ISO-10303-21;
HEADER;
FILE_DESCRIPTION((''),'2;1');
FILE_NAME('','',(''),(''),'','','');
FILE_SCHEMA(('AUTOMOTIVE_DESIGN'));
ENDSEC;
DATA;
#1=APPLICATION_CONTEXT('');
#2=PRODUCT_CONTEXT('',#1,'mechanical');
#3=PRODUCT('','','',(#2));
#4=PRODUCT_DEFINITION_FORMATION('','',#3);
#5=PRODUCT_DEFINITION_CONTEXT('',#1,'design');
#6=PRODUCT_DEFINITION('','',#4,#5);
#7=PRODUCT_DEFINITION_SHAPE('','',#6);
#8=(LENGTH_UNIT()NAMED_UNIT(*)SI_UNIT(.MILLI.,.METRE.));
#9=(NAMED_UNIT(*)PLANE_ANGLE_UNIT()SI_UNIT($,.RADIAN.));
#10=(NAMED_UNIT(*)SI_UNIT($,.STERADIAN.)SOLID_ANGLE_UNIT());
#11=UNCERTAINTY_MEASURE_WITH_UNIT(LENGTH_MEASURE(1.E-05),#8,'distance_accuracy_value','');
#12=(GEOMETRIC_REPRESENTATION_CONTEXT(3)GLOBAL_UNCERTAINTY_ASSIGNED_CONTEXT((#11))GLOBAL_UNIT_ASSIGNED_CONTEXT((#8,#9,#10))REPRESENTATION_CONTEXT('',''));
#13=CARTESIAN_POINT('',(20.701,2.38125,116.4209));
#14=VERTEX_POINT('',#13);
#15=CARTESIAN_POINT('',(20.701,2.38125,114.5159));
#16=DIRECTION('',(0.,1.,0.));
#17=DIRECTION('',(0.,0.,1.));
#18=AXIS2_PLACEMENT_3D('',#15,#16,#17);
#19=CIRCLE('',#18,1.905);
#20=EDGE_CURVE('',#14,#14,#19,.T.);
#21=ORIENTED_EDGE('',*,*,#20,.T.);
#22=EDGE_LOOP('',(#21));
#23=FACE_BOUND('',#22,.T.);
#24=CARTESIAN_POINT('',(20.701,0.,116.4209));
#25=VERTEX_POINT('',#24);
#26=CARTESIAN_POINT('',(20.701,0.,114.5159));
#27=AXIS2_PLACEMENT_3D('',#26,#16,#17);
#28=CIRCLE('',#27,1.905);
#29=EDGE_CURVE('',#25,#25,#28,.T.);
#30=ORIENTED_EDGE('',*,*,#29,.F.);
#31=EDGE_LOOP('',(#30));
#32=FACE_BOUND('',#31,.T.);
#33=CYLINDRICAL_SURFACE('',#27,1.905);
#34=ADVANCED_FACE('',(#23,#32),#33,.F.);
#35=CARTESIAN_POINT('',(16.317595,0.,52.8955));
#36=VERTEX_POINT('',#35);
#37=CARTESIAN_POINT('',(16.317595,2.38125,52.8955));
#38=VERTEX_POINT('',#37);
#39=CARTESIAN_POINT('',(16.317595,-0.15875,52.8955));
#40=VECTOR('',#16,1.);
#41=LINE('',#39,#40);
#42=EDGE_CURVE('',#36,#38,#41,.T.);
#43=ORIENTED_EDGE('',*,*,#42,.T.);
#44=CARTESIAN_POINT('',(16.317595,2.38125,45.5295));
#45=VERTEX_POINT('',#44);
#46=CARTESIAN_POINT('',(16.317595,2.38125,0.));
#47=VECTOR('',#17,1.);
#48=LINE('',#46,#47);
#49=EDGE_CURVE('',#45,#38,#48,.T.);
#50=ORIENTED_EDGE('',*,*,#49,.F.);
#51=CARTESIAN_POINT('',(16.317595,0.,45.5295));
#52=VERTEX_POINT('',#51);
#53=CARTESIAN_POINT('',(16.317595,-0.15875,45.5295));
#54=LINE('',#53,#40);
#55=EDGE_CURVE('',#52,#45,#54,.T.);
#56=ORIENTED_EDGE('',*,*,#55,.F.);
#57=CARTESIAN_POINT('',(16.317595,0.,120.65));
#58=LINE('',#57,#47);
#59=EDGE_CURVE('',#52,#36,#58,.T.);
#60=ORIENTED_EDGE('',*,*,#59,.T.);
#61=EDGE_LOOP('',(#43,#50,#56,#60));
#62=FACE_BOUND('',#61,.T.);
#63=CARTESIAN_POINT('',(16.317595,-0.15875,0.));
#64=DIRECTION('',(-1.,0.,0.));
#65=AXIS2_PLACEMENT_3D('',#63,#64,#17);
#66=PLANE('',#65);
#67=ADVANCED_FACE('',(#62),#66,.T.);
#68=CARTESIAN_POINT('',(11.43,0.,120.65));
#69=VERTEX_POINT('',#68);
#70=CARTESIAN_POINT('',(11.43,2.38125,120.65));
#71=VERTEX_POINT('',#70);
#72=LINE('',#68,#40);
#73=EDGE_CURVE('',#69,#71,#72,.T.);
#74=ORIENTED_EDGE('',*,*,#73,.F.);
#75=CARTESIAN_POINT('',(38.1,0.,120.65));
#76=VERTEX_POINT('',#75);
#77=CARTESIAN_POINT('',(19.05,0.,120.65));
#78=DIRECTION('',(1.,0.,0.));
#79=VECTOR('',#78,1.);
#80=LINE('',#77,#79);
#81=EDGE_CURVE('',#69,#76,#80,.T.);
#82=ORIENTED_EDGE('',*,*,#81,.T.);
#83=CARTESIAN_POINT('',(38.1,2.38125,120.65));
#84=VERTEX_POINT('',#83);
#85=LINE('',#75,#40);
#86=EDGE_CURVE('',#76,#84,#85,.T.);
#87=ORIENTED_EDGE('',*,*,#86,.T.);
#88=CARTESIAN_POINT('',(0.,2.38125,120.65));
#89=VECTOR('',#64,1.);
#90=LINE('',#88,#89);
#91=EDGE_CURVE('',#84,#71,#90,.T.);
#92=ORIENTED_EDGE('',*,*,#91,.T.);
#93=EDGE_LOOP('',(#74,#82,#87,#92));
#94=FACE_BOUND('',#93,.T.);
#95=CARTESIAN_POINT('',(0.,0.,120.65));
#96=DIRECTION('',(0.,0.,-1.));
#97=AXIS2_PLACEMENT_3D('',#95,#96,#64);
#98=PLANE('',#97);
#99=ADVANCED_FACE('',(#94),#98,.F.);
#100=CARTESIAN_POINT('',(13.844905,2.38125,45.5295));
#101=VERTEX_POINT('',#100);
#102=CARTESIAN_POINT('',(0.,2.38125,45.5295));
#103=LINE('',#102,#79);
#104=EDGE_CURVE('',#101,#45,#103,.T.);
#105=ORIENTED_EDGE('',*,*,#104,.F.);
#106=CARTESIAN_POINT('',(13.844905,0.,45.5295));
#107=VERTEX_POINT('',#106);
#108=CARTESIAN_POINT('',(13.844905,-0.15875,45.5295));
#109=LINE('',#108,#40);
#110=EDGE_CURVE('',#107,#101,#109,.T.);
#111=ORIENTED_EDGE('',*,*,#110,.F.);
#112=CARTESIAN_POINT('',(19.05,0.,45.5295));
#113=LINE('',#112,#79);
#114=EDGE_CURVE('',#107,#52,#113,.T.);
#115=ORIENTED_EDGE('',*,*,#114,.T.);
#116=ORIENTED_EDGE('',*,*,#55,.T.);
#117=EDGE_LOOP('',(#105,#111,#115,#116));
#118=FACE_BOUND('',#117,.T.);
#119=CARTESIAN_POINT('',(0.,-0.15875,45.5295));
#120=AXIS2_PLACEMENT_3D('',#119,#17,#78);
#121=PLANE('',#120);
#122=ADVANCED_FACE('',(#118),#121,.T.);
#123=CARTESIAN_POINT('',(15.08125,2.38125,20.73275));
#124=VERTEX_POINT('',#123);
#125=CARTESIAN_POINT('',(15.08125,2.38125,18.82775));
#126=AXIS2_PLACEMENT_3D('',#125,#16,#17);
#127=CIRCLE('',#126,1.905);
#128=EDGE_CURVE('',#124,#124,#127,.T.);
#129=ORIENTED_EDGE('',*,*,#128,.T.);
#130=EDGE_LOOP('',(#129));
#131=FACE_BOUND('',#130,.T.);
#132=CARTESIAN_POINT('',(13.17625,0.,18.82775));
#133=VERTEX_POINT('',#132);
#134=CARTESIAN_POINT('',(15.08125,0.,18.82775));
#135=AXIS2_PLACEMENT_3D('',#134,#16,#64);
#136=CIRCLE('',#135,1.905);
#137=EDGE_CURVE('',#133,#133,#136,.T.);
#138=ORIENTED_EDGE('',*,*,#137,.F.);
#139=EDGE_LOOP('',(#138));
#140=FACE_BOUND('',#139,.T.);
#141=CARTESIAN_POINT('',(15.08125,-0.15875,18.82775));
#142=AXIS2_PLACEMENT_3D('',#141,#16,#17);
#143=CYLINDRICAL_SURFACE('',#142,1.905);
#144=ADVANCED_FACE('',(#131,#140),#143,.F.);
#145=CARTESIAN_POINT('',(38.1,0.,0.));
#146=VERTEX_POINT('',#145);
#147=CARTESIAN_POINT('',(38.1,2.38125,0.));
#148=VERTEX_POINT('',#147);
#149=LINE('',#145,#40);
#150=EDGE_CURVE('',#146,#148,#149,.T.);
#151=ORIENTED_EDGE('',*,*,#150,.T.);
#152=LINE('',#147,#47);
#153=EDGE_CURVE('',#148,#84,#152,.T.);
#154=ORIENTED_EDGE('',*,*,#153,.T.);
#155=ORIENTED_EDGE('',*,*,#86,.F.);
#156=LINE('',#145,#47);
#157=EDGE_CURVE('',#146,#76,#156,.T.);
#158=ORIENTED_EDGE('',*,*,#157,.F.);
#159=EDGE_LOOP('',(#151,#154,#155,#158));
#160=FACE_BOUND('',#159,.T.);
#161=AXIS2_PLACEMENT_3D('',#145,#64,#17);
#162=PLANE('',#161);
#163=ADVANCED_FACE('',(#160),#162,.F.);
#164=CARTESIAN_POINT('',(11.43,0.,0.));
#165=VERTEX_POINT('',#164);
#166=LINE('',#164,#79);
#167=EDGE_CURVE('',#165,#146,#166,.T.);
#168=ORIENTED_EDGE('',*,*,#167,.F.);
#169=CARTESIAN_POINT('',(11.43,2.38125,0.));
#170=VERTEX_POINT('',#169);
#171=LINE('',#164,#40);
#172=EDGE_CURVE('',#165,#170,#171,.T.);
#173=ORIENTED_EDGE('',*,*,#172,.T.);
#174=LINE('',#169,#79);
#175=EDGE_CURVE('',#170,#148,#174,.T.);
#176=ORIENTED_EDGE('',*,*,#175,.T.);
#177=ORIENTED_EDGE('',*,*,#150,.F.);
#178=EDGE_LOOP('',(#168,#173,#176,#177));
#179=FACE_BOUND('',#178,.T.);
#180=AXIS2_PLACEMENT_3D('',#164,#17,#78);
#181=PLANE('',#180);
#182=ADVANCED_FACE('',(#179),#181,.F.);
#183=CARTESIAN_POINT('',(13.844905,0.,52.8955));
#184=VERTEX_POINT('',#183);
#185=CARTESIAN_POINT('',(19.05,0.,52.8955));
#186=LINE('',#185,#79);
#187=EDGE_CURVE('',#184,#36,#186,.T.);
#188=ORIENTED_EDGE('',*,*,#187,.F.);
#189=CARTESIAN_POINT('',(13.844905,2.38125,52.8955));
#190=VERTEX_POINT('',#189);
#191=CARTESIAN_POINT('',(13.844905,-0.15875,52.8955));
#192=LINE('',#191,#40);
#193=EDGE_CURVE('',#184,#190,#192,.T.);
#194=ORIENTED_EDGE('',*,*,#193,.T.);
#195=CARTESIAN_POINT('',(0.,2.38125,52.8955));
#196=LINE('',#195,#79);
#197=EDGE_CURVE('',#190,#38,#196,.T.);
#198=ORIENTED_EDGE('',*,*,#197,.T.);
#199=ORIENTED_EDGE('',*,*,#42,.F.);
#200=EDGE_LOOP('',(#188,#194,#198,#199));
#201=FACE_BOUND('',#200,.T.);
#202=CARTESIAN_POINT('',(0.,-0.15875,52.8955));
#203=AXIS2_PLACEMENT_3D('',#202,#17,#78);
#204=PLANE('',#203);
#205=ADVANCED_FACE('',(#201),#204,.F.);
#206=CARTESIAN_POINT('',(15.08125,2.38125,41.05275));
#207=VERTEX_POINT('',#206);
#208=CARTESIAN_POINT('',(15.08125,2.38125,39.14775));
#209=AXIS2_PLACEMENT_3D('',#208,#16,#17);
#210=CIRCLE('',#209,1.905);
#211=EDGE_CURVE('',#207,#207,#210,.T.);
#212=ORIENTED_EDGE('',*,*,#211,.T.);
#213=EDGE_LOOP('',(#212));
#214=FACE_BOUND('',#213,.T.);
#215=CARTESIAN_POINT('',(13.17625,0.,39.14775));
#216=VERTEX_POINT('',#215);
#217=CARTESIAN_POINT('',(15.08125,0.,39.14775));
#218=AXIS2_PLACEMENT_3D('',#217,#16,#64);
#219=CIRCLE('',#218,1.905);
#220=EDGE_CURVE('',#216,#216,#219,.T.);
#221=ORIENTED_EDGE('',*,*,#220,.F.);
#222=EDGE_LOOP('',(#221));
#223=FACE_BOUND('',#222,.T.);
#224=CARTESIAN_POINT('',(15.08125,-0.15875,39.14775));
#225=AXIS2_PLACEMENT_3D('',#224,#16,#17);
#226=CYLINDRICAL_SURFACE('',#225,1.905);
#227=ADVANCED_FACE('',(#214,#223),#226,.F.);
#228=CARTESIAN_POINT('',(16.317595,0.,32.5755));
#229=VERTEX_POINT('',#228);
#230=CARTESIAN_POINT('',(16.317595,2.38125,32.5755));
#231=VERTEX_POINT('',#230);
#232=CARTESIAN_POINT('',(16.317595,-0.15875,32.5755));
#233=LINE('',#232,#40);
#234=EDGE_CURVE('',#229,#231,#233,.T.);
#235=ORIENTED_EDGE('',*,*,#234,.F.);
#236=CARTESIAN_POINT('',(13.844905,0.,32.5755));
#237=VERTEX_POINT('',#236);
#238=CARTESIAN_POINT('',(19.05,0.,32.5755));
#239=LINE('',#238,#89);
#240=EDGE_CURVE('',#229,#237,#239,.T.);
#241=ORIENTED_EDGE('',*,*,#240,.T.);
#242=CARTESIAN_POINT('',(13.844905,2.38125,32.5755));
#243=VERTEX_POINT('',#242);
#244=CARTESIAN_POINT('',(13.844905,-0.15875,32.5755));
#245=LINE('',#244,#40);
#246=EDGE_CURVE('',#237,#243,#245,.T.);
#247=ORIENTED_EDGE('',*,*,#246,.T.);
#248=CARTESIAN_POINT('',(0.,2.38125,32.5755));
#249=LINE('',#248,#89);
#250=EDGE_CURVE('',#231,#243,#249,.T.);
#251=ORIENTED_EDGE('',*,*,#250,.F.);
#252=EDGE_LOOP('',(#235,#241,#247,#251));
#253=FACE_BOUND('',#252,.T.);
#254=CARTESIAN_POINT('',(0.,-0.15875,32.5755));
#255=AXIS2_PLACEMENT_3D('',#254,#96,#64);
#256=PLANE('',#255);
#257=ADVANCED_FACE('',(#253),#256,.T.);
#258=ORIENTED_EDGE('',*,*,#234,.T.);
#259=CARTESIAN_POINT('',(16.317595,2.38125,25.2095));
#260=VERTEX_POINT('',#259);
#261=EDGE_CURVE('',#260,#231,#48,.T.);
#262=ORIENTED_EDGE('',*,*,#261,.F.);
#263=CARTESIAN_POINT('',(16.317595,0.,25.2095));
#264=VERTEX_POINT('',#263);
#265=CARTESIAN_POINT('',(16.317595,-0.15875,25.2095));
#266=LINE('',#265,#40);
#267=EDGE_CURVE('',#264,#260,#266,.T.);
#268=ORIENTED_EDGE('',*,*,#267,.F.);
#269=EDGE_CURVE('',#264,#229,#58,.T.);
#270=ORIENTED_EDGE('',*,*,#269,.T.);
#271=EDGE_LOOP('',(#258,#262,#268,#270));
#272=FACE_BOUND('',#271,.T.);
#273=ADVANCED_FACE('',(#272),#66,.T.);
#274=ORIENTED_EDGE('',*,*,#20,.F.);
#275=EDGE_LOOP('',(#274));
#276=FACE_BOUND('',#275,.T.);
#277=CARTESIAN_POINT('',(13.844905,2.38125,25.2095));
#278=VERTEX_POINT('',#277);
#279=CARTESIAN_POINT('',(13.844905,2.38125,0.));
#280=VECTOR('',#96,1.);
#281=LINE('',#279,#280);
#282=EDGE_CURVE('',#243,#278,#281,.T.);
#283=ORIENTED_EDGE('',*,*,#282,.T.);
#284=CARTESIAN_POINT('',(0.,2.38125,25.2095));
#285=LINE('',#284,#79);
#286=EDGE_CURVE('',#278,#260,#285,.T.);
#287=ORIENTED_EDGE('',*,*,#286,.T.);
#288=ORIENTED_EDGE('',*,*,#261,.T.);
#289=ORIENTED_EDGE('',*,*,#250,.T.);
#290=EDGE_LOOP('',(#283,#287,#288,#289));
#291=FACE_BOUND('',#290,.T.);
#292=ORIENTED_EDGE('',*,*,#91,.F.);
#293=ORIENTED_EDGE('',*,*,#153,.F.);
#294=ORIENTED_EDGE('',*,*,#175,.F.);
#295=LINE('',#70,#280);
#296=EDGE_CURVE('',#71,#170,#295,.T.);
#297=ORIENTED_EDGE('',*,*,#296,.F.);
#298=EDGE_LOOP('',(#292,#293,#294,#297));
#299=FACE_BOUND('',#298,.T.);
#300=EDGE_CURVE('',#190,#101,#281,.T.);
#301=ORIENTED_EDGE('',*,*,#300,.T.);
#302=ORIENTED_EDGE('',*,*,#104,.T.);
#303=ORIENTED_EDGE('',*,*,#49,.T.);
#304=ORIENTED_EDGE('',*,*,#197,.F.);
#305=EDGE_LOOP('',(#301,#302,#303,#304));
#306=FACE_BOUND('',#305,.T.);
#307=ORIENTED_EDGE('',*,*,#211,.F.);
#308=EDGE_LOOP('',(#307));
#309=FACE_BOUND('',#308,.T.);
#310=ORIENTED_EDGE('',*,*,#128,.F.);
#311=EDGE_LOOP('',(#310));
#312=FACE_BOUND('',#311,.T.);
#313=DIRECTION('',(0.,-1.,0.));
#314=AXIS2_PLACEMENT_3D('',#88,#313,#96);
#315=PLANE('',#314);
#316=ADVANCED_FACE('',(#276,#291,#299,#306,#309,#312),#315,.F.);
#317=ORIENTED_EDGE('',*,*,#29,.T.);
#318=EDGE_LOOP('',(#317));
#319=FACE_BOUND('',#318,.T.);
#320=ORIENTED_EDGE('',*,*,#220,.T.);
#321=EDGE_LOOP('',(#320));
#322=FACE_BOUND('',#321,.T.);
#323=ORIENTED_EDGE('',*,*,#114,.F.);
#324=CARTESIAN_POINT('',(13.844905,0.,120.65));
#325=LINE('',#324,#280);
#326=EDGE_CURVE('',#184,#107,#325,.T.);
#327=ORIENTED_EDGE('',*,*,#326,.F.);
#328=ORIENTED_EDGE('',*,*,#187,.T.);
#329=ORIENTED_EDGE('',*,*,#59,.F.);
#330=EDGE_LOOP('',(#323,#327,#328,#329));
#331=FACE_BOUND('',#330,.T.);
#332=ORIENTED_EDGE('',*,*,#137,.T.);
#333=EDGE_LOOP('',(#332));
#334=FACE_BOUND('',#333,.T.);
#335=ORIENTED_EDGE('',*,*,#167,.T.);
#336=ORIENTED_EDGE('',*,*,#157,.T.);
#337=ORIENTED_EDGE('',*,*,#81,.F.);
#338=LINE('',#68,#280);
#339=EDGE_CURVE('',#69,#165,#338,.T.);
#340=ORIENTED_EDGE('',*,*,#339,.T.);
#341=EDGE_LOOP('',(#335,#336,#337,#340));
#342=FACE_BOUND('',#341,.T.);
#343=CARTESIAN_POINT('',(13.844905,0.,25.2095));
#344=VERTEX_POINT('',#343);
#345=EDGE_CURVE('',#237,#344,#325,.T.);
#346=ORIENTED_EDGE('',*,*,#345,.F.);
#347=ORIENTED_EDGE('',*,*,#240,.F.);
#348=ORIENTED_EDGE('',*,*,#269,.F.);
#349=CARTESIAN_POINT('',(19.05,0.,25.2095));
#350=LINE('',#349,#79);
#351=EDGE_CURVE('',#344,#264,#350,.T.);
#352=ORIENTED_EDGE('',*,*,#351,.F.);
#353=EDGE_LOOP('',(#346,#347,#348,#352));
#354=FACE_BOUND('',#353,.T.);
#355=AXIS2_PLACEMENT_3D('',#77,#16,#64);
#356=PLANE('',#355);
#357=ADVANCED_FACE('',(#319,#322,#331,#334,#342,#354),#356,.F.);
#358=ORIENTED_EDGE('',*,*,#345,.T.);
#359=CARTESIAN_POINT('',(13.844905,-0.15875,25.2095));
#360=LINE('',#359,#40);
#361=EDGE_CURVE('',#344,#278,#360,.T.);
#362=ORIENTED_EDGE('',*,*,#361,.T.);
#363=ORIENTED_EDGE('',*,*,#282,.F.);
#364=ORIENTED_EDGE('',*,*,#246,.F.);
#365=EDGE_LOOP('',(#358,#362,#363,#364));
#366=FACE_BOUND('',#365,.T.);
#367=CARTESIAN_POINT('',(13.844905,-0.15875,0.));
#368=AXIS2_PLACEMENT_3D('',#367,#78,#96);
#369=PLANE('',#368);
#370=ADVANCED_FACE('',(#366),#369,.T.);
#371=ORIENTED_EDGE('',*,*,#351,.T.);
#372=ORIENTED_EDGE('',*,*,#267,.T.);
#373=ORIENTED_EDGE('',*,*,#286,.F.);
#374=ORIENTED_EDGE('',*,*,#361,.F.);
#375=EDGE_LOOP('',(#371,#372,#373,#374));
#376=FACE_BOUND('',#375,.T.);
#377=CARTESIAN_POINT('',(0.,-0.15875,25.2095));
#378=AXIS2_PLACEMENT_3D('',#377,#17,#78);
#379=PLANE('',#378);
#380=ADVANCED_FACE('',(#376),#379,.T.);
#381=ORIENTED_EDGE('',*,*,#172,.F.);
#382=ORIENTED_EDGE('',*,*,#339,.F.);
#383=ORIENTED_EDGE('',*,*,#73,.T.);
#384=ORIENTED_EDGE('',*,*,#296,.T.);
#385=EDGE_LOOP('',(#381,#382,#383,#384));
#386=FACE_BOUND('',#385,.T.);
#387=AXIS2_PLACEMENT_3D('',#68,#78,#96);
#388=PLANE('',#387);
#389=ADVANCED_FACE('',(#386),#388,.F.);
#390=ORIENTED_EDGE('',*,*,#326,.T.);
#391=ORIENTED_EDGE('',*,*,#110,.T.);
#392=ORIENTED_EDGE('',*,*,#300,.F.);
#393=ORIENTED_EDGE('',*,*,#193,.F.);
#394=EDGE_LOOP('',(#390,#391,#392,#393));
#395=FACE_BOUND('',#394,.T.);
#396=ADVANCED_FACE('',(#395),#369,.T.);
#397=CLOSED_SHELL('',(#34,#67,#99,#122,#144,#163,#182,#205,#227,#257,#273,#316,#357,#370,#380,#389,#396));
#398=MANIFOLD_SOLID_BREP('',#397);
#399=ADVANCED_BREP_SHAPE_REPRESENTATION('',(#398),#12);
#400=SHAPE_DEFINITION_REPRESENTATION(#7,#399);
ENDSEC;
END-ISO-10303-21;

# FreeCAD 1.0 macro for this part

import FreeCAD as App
import Part
import Sketcher
Q = App.Units.Quantity


def add_polygon(sketch, points):
    """Adds a closed chain of lines whose ends are joined by coincident constraints."""
    first, n = sketch.GeometryCount, len(points)
    for a, b in zip(points, points[1:] + points[:1]):
        sketch.addGeometry(Part.LineSegment(App.Vector(*a, 0), App.Vector(*b, 0)), False)
    for i in range(n):
        sketch.addConstraint(Sketcher.Constraint("Coincident", first + i, 2, first + (i + 1) % n, 1))

doc = App.newDocument("Part")
body = doc.addObject("PartDesign::Body", "Body")

sketch1 = body.newObject("Sketcher::SketchObject", "Sketch")
sketch1.AttachmentSupport = (doc.getObject("XY_Plane"), [""])
sketch1.MapMode = "FlatFace"
add_polygon(sketch1, [(0, 2.4), (0, 0), (19.1, 0), (19.1, 2.4)])
sketch1.addConstraint(Sketcher.Constraint("Vertical", 0))
sketch1.addConstraint(Sketcher.Constraint("Horizontal", 1))
sketch1.addConstraint(Sketcher.Constraint("Vertical", 2))
sketch1.addConstraint(Sketcher.Constraint("Horizontal", 3))
sketch1.addConstraint(Sketcher.Constraint("Coincident", 0, 2, -1, 1))
sketch1.addConstraint(Sketcher.Constraint("DistanceX", 1, 1, 1, 2, Q("0.75 in")))
sketch1.addConstraint(Sketcher.Constraint("DistanceY", 0, 2, 0, 1, Q("0.09375 in")))
pad1 = body.newObject("PartDesign::Pad", "Pad")
pad1.Profile = sketch1
pad1.Length = Q("4.75 in")

sketch2 = body.newObject("Sketcher::SketchObject", "Sketch001")
sketch2.AttachmentSupport = (doc.getObject("XZ_Plane"), [""])
sketch2.MapMode = "FlatFace"
sketch2.AttachmentOffset = App.Placement(App.Vector(0, 0, -0.09375 * 25.4), App.Rotation())
add_polygon(sketch2, [(19, 0), (19, 121), (38, 121), (38, 0)])
sketch2.addConstraint(Sketcher.Constraint("Vertical", 0))
sketch2.addConstraint(Sketcher.Constraint("Horizontal", 1))
sketch2.addConstraint(Sketcher.Constraint("Vertical", 2))
sketch2.addConstraint(Sketcher.Constraint("Horizontal", 3))
sketch2.addConstraint(Sketcher.Constraint("PointOnObject", 2, 2, -1))
sketch2.addConstraint(Sketcher.Constraint("DistanceX", 1, 1, 1, 2, Q("0.75 in")))
sketch2.addConstraint(Sketcher.Constraint("DistanceY", 0, 1, 0, 2, Q("4.75 in")))
sketch2.addConstraint(Sketcher.Constraint("DistanceX", -1, 1, 1, 2, Q("1.5 in")))
pad2 = body.newObject("PartDesign::Pad", "Pad001")
pad2.Profile = sketch2
pad2.Length = Q("0.09375 in")

sketch3 = body.newObject("Sketcher::SketchObject", "Sketch002")
sketch3.AttachmentSupport = (doc.getObject("XZ_Plane"), [""])
sketch3.MapMode = "FlatFace"
sketch3.AttachmentOffset = App.Placement(App.Vector(0, 0, -0.09375 * 25.4), App.Rotation())
sketch3.addGeometry(Part.Circle(App.Vector(20.7, 114.5, 0), App.Vector(0, 0, 1), 1.9), False)
sketch3.addConstraint(Sketcher.Constraint("Diameter", 0, Q("0.15 in")))
sketch3.addConstraint(Sketcher.Constraint("DistanceX", -1, 1, 0, 3, Q("0.815 in")))
sketch3.addConstraint(Sketcher.Constraint("DistanceY", -1, 1, 0, 3, Q("4.5085 in")))
pocket1 = body.newObject("PartDesign::Pocket", "Pocket")
pocket1.Profile = sketch3
pocket1.Type = "ThroughAll"
pocket1.Reversed = True

sketch4 = body.newObject("Sketcher::SketchObject", "Sketch003")
sketch4.AttachmentSupport = (doc.getObject("XZ_Plane"), [""])
sketch4.MapMode = "FlatFace"
sketch4.AttachmentOffset = App.Placement(App.Vector(0, 0, -0.09375 * 25.4), App.Rotation())
sketch4.addGeometry(Part.Circle(App.Vector(15.1, 39.1, 0), App.Vector(0, 0, 1), 1.9), False)
sketch4.addGeometry(Part.Circle(App.Vector(15.1, 18.8, 0), App.Vector(0, 0, 1), 1.9), False)
add_polygon(sketch4, [(16.3, 32.6), (16.3, 25.2), (13.8, 25.2), (13.8, 32.6)])
add_polygon(sketch4, [(16.3, 52.9), (16.3, 45.5), (13.8, 45.5), (13.8, 52.9)])
sketch4.addConstraint(Sketcher.Constraint("Vertical", 2))
sketch4.addConstraint(Sketcher.Constraint("Horizontal", 3))
sketch4.addConstraint(Sketcher.Constraint("Vertical", 4))
sketch4.addConstraint(Sketcher.Constraint("Horizontal", 5))
sketch4.addConstraint(Sketcher.Constraint("Vertical", 6))
sketch4.addConstraint(Sketcher.Constraint("Horizontal", 7))
sketch4.addConstraint(Sketcher.Constraint("Vertical", 8))
sketch4.addConstraint(Sketcher.Constraint("Horizontal", 9))
sketch4.addConstraint(Sketcher.Constraint("Equal", 0, 1))
sketch4.addConstraint(Sketcher.Constraint("Vertical", 0, 3, 1, 3))
sketch4.addConstraint(Sketcher.Constraint("Vertical", 5, 2, 6, 2))
sketch4.addConstraint(Sketcher.Constraint("Vertical", 4, 2, 7, 2))
sketch4.addConstraint(Sketcher.Constraint("Equal", 4, 6))
sketch4.addConstraint(Sketcher.Constraint("Diameter", 0, Q("0.15 in")))
sketch4.addConstraint(Sketcher.Constraint("DistanceY", 2, 2, 2, 1, Q("0.29 in")))
sketch4.addConstraint(Sketcher.Constraint("DistanceY", 1, 3, 0, 3, Q("0.8 in")))
sketch4.addConstraint(Sketcher.Constraint("DistanceY", 2, 2, 6, 2, Q("0.8 in")))
sketch4.addConstraint(Sketcher.Constraint("DistanceX", -1, 1, 0, 3, Q("0.59375 in")))
sketch4.addConstraint(Sketcher.Constraint("DistanceY", -1, 1, 2, 2, Q("0.9925 in")))
sketch4.addConstraint(Sketcher.Constraint("DistanceX", 3, 2, 3, 1, 2.47269))
sketch4.addConstraint(Sketcher.Constraint("DistanceY", -1, 1, 0, 3, 39.14775))
sketch4.addConstraint(Sketcher.Constraint("DistanceX", -1, 1, 2, 2, 16.317595))
pocket2 = body.newObject("PartDesign::Pocket", "Pocket001")
pocket2.Profile = sketch4
pocket2.Length = Q("0.1 in")
pocket2.Reversed = True

sketch5 = body.newObject("Sketcher::SketchObject", "Sketch004")
sketch5.AttachmentSupport = (doc.getObject("XZ_Plane"), [""])
sketch5.MapMode = "FlatFace"
sketch5.AttachmentOffset = App.Placement(App.Vector(0, 0, -0.09375 * 25.4), App.Rotation())
add_polygon(sketch5, [(0, -30), (0, 0), (38, 0), (38, -30)])
sketch5.addConstraint(Sketcher.Constraint("Vertical", 0))
sketch5.addConstraint(Sketcher.Constraint("Horizontal", 1))
sketch5.addConstraint(Sketcher.Constraint("Vertical", 2))
sketch5.addConstraint(Sketcher.Constraint("Horizontal", 3))
sketch5.addConstraint(Sketcher.Constraint("Coincident", 0, 2, -1, 1))
sketch5.addConstraint(Sketcher.Constraint("DistanceX", 1, 1, 1, 2, Q("1.5 in")))
sketch5.addConstraint(Sketcher.Constraint("DistanceY", 0, 1, 0, 2, Q("1.1675 in")))
pad3 = body.newObject("PartDesign::Pad", "Pad002")
pad3.Profile = sketch5
pad3.Length = Q("0.09375 in")

sketch6 = body.newObject("Sketcher::SketchObject", "Sketch005")
sketch6.AttachmentSupport = (doc.getObject("XZ_Plane"), [""])
sketch6.MapMode = "FlatFace"
sketch6.AttachmentOffset = App.Placement(App.Vector(0, 0, -0.09375 * 25.4), App.Rotation())
add_polygon(sketch6, [(0, -30), (0, 121), (11, 121), (11, -30)])
sketch6.addConstraint(Sketcher.Constraint("Vertical", 0))
sketch6.addConstraint(Sketcher.Constraint("Horizontal", 1))
sketch6.addConstraint(Sketcher.Constraint("Vertical", 2))
sketch6.addConstraint(Sketcher.Constraint("Horizontal", 3))
sketch6.addConstraint(Sketcher.Constraint("PointOnObject", 0, 2, -2))
sketch6.addConstraint(Sketcher.Constraint("DistanceX", 1, 1, 1, 2, Q("0.45 in")))
sketch6.addConstraint(Sketcher.Constraint("DistanceY", -1, 1, 0, 2, Q("4.75 in")))
sketch6.addConstraint(Sketcher.Constraint("DistanceY", 0, 1, 0, 2, Q("5.9175 in")))
pocket3 = body.newObject("PartDesign::Pocket", "Pocket002")
pocket3.Profile = sketch6
pocket3.Type = "ThroughAll"
pocket3.Reversed = True

sketch7 = body.newObject("Sketcher::SketchObject", "Sketch006")
sketch7.AttachmentSupport = (doc.getObject("XZ_Plane"), [""])
sketch7.MapMode = "FlatFace"
sketch7.AttachmentOffset = App.Placement(App.Vector(0, 0, -0.09375 * 25.4), App.Rotation())
add_polygon(sketch7, [(11, -30), (11, 0), (38, 0), (38, -30)])
sketch7.addConstraint(Sketcher.Constraint("Vertical", 0))
sketch7.addConstraint(Sketcher.Constraint("Horizontal", 1))
sketch7.addConstraint(Sketcher.Constraint("Vertical", 2))
sketch7.addConstraint(Sketcher.Constraint("Horizontal", 3))
sketch7.addConstraint(Sketcher.Constraint("PointOnObject", 0, 2, -1))
sketch7.addConstraint(Sketcher.Constraint("DistanceX", 1, 1, 1, 2, Q("1.05 in")))
sketch7.addConstraint(Sketcher.Constraint("DistanceX", -1, 1, 1, 2, Q("1.5 in")))
sketch7.addConstraint(Sketcher.Constraint("DistanceY", 0, 1, 0, 2, Q("1.1675 in")))
pocket4 = body.newObject("PartDesign::Pocket", "Pocket003")
pocket4.Profile = sketch7
pocket4.Type = "ThroughAll"
pocket4.Reversed = True

doc.recompute()
